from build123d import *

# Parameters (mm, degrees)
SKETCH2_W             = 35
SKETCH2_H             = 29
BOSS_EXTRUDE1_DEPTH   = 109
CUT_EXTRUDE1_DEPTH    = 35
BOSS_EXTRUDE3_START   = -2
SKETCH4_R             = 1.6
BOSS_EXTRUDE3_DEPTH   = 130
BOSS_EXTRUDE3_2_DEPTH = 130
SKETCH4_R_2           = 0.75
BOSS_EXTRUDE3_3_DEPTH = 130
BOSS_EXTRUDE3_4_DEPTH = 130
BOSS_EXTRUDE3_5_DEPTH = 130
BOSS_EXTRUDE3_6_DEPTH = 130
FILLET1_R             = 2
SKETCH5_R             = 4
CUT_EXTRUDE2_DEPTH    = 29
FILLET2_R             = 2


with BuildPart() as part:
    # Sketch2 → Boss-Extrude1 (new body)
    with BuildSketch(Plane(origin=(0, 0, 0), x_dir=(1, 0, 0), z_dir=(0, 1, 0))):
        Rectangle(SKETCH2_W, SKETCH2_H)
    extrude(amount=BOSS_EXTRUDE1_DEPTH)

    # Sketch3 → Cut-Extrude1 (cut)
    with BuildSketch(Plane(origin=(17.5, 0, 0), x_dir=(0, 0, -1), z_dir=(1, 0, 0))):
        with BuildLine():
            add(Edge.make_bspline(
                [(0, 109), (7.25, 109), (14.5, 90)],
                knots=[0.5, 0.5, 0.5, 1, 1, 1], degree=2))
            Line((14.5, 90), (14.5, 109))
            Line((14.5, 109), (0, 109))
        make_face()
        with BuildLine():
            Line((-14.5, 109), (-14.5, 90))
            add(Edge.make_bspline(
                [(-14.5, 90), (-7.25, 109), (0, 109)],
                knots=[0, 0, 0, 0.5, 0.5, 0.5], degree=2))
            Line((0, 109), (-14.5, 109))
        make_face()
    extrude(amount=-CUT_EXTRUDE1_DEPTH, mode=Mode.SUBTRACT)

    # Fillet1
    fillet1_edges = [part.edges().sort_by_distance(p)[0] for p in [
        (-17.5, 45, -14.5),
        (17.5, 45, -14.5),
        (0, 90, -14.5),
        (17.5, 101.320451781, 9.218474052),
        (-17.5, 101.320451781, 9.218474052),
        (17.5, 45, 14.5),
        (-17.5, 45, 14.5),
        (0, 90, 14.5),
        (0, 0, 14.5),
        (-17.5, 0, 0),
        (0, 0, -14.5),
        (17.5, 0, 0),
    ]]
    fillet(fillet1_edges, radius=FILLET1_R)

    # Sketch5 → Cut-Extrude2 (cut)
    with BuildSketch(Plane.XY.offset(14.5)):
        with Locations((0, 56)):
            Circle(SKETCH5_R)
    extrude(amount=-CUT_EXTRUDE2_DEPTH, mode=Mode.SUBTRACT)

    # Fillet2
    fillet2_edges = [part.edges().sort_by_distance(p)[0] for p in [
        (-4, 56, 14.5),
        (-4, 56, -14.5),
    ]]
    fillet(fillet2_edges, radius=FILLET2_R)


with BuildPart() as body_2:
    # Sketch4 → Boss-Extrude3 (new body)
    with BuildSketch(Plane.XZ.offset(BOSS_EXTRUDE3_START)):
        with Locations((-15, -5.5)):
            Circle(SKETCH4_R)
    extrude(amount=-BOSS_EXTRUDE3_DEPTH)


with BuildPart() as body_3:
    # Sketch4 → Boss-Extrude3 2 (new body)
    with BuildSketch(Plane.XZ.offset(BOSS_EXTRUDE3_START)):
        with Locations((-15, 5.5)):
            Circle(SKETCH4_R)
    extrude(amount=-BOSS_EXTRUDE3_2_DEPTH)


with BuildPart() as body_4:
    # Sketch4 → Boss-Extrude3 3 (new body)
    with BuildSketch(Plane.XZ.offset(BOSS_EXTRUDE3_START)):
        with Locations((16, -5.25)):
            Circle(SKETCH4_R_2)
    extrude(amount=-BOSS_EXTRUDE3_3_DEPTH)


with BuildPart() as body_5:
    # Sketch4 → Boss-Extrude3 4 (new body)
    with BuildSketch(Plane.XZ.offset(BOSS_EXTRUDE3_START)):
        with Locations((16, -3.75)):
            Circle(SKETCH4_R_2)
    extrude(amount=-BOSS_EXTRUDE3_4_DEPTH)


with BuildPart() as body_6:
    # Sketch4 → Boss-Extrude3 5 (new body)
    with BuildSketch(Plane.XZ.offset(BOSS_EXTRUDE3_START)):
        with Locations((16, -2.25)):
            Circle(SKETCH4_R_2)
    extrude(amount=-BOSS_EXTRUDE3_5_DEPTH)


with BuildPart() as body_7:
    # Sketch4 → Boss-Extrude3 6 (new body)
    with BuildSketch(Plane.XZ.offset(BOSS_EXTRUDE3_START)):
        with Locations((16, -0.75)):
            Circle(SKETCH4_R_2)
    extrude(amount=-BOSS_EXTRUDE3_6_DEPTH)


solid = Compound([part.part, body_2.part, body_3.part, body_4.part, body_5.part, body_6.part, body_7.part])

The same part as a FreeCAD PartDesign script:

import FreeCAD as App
import Part
import Sketcher

V = App.Vector


def edges_at(feature, points):
    """Names of the edges that pass closest to the given points."""
    edges = feature.Shape.Edges
    near = lambda p: min(range(len(edges)), key=lambda i: edges[i].distToShape(Part.Vertex(*p))[0])
    return sorted({f"Edge{near(p) + 1}" for p in points})

doc = App.newDocument("Part")
body = doc.addObject("PartDesign::Body", "Body")

sketch1 = body.newObject("Sketcher::SketchObject", "Sketch")
sketch1.AttachmentSupport = (doc.getObject("XZ_Plane"), [""])
sketch1.MapMode = "FlatFace"
sketch1.addGeometry([
    Part.LineSegment(V(-18, -14, 0), V(-18, 14, 0)),
    Part.LineSegment(V(-18, 14, 0), V(18, 14, 0)),
    Part.LineSegment(V(18, 14, 0), V(18, -14, 0)),
    Part.LineSegment(V(18, -14, 0), V(-18, -14, 0)),
], False)
sketch1.addConstraint([
    Sketcher.Constraint("Coincident", 0, 2, 1, 1),
    Sketcher.Constraint("Coincident", 1, 2, 2, 1),
    Sketcher.Constraint("Coincident", 2, 2, 3, 1),
    Sketcher.Constraint("Coincident", 3, 2, 0, 1),
    Sketcher.Constraint("Vertical", 0),
    Sketcher.Constraint("Horizontal", 1),
    Sketcher.Constraint("Vertical", 2),
    Sketcher.Constraint("Horizontal", 3),
    Sketcher.Constraint("Symmetric", 0, 2, 2, 2, -1, 1),
    Sketcher.Constraint("DistanceX", 1, 1, 1, 2, 35.0),
    Sketcher.Constraint("DistanceY", 0, 1, 0, 2, 29.0),
])
pad1 = body.newObject("PartDesign::Pad", "Pad")
pad1.Profile = sketch1
pad1.Length = 109
pad1.Reversed = True

sketch2 = body.newObject("Sketcher::SketchObject", "Sketch001")
sketch2.AttachmentSupport = (doc.getObject("YZ_Plane"), [""])
sketch2.MapMode = "FlatFace"
sketch2.AttachmentOffset = App.Placement(V(0, 0, 17.5), App.Rotation())
sketch2.addGeometry([
    Part.BSplineCurve([V(109, 0, 0), V(109, -7.25, 0), V(90, -14.5, 0)], [3, 3], [0.5, 1], False, 2, [1, 1, 1], False),
    Part.LineSegment(V(90, -14.5, 0), V(109, -14.5, 0)),
    Part.LineSegment(V(109, -14.5, 0), V(109, 0, 0)),
    Part.LineSegment(V(109, 14.5, 0), V(90, 14.5, 0)),
    Part.BSplineCurve([V(90, 14.5, 0), V(109, 7.25, 0), V(109, 0, 0)], [3, 3], [0, 0.5], False, 2, [1, 1, 1], False),
    Part.LineSegment(V(109, 0, 0), V(109, 14.5, 0)),
], False)
sketch2.addConstraint([
    Sketcher.Constraint("Block", 0),
    Sketcher.Constraint("Block", 4),
    Sketcher.Constraint("Coincident", 0, 2, 1, 1),
    Sketcher.Constraint("Coincident", 1, 2, 2, 1),
    Sketcher.Constraint("Coincident", 2, 2, 0, 1),
    Sketcher.Constraint("Coincident", 3, 2, 4, 1),
    Sketcher.Constraint("Coincident", 4, 2, 5, 1),
    Sketcher.Constraint("Coincident", 5, 2, 3, 1),
    Sketcher.Constraint("Horizontal", 1),
    Sketcher.Constraint("Vertical", 2),
    Sketcher.Constraint("Horizontal", 3),
    Sketcher.Constraint("Vertical", 5),
])
pocket1 = body.newObject("PartDesign::Pocket", "Pocket")
pocket1.Profile = sketch2
pocket1.Length = 35
doc.recompute()

fillet = body.newObject("PartDesign::Fillet", "Fillet")
fillet.Base = (pocket1, ["Edge1"])
fillet.UseAllEdges = True
fillet.Radius = 2

sketch3 = body.newObject("Sketcher::SketchObject", "Sketch002")
sketch3.AttachmentSupport = (doc.getObject("XY_Plane"), [""])
sketch3.MapMode = "FlatFace"
sketch3.AttachmentOffset = App.Placement(V(0, 0, 14.5), App.Rotation())
sketch3.addGeometry(Part.Circle(V(0, 56, 0), V(0, 0, 1), 4), False)
sketch3.addConstraint([
    Sketcher.Constraint("PointOnObject", 0, 3, -2),
    Sketcher.Constraint("Diameter", 0, 8.0),
    Sketcher.Constraint("DistanceY", -1, 1, 0, 3, 56.0),
])
pocket2 = body.newObject("PartDesign::Pocket", "Pocket001")
pocket2.Profile = sketch3
pocket2.Length = 29
doc.recompute()

fillet2 = body.newObject("PartDesign::Fillet", "Fillet001")
fillet2.Base = (pocket2, edges_at(pocket2, [(-4, 56, 14.5), (-4, 56, -14.5)]))
fillet2.Radius = 2
body2 = doc.addObject("PartDesign::Body", "Body001")

sketch4 = body2.newObject("Sketcher::SketchObject", "Sketch003")
sketch4.AttachmentSupport = (doc.getObject("XZ_Plane001"), [""])
sketch4.MapMode = "FlatFace"
sketch4.AttachmentOffset = App.Placement(V(0, 0, -2), App.Rotation())
sketch4.addGeometry(Part.Circle(V(-15, -5.5, 0), V(0, 0, 1), 1.6), False)
sketch4.addConstraint([
    Sketcher.Constraint("Diameter", 0, 3.2),
    Sketcher.Constraint("DistanceX", 0, 3, -1, 1, 15.0),
    Sketcher.Constraint("DistanceY", 0, 3, -1, 1, 5.5),
])
pad2 = body2.newObject("PartDesign::Pad", "Pad001")
pad2.Profile = sketch4
pad2.Length = 130
pad2.Reversed = True
body3 = doc.addObject("PartDesign::Body", "Body002")

sketch5 = body3.newObject("Sketcher::SketchObject", "Sketch004")
sketch5.AttachmentSupport = (doc.getObject("XZ_Plane002"), [""])
sketch5.MapMode = "FlatFace"
sketch5.AttachmentOffset = App.Placement(V(0, 0, -2), App.Rotation())
sketch5.addGeometry(Part.Circle(V(-15, 5.5, 0), V(0, 0, 1), 1.6), False)
sketch5.addConstraint([
    Sketcher.Constraint("Diameter", 0, 3.2),
    Sketcher.Constraint("DistanceX", 0, 3, -1, 1, 15.0),
    Sketcher.Constraint("DistanceY", -1, 1, 0, 3, 5.5),
])
pad3 = body3.newObject("PartDesign::Pad", "Pad002")
pad3.Profile = sketch5
pad3.Length = 130
pad3.Reversed = True
body4 = doc.addObject("PartDesign::Body", "Body003")

sketch6 = body4.newObject("Sketcher::SketchObject", "Sketch005")
sketch6.AttachmentSupport = (doc.getObject("XZ_Plane003"), [""])
sketch6.MapMode = "FlatFace"
sketch6.AttachmentOffset = App.Placement(V(0, 0, -2), App.Rotation())
sketch6.addGeometry(Part.Circle(V(16, -5.2, 0), V(0, 0, 1), 0.8), False)
sketch6.addConstraint([
    Sketcher.Constraint("Diameter", 0, 1.5),
    Sketcher.Constraint("DistanceX", -1, 1, 0, 3, 16.0),
    Sketcher.Constraint("DistanceY", 0, 3, -1, 1, 5.25),
])
pad4 = body4.newObject("PartDesign::Pad", "Pad003")
pad4.Profile = sketch6
pad4.Length = 130
pad4.Reversed = True
body5 = doc.addObject("PartDesign::Body", "Body004")

sketch7 = body5.newObject("Sketcher::SketchObject", "Sketch006")
sketch7.AttachmentSupport = (doc.getObject("XZ_Plane004"), [""])
sketch7.MapMode = "FlatFace"
sketch7.AttachmentOffset = App.Placement(V(0, 0, -2), App.Rotation())
sketch7.addGeometry(Part.Circle(V(16, -3.8, 0), V(0, 0, 1), 0.8), False)
sketch7.addConstraint([
    Sketcher.Constraint("Diameter", 0, 1.5),
    Sketcher.Constraint("DistanceX", -1, 1, 0, 3, 16.0),
    Sketcher.Constraint("DistanceY", 0, 3, -1, 1, 3.75),
])
pad5 = body5.newObject("PartDesign::Pad", "Pad004")
pad5.Profile = sketch7
pad5.Length = 130
pad5.Reversed = True
body6 = doc.addObject("PartDesign::Body", "Body005")

sketch8 = body6.newObject("Sketcher::SketchObject", "Sketch007")
sketch8.AttachmentSupport = (doc.getObject("XZ_Plane005"), [""])
sketch8.MapMode = "FlatFace"
sketch8.AttachmentOffset = App.Placement(V(0, 0, -2), App.Rotation())
sketch8.addGeometry(Part.Circle(V(16, -2.2, 0), V(0, 0, 1), 0.8), False)
sketch8.addConstraint([
    Sketcher.Constraint("Diameter", 0, 1.5),
    Sketcher.Constraint("DistanceX", -1, 1, 0, 3, 16.0),
    Sketcher.Constraint("DistanceY", 0, 3, -1, 1, 2.25),
])
pad6 = body6.newObject("PartDesign::Pad", "Pad005")
pad6.Profile = sketch8
pad6.Length = 130
pad6.Reversed = True
body7 = doc.addObject("PartDesign::Body", "Body006")

sketch9 = body7.newObject("Sketcher::SketchObject", "Sketch008")
sketch9.AttachmentSupport = (doc.getObject("XZ_Plane006"), [""])
sketch9.MapMode = "FlatFace"
sketch9.AttachmentOffset = App.Placement(V(0, 0, -2), App.Rotation())
sketch9.addGeometry(Part.Circle(V(16, -0.8, 0), V(0, 0, 1), 0.8), False)
sketch9.addConstraint([
    Sketcher.Constraint("Diameter", 0, 1.5),
    Sketcher.Constraint("DistanceX", -1, 1, 0, 3, 16.0),
    Sketcher.Constraint("DistanceY", 0, 3, -1, 1, 0.75),
])
pad7 = body7.newObject("PartDesign::Pad", "Pad006")
pad7.Profile = sketch9
pad7.Length = 130
pad7.Reversed = True

doc.recompute()
